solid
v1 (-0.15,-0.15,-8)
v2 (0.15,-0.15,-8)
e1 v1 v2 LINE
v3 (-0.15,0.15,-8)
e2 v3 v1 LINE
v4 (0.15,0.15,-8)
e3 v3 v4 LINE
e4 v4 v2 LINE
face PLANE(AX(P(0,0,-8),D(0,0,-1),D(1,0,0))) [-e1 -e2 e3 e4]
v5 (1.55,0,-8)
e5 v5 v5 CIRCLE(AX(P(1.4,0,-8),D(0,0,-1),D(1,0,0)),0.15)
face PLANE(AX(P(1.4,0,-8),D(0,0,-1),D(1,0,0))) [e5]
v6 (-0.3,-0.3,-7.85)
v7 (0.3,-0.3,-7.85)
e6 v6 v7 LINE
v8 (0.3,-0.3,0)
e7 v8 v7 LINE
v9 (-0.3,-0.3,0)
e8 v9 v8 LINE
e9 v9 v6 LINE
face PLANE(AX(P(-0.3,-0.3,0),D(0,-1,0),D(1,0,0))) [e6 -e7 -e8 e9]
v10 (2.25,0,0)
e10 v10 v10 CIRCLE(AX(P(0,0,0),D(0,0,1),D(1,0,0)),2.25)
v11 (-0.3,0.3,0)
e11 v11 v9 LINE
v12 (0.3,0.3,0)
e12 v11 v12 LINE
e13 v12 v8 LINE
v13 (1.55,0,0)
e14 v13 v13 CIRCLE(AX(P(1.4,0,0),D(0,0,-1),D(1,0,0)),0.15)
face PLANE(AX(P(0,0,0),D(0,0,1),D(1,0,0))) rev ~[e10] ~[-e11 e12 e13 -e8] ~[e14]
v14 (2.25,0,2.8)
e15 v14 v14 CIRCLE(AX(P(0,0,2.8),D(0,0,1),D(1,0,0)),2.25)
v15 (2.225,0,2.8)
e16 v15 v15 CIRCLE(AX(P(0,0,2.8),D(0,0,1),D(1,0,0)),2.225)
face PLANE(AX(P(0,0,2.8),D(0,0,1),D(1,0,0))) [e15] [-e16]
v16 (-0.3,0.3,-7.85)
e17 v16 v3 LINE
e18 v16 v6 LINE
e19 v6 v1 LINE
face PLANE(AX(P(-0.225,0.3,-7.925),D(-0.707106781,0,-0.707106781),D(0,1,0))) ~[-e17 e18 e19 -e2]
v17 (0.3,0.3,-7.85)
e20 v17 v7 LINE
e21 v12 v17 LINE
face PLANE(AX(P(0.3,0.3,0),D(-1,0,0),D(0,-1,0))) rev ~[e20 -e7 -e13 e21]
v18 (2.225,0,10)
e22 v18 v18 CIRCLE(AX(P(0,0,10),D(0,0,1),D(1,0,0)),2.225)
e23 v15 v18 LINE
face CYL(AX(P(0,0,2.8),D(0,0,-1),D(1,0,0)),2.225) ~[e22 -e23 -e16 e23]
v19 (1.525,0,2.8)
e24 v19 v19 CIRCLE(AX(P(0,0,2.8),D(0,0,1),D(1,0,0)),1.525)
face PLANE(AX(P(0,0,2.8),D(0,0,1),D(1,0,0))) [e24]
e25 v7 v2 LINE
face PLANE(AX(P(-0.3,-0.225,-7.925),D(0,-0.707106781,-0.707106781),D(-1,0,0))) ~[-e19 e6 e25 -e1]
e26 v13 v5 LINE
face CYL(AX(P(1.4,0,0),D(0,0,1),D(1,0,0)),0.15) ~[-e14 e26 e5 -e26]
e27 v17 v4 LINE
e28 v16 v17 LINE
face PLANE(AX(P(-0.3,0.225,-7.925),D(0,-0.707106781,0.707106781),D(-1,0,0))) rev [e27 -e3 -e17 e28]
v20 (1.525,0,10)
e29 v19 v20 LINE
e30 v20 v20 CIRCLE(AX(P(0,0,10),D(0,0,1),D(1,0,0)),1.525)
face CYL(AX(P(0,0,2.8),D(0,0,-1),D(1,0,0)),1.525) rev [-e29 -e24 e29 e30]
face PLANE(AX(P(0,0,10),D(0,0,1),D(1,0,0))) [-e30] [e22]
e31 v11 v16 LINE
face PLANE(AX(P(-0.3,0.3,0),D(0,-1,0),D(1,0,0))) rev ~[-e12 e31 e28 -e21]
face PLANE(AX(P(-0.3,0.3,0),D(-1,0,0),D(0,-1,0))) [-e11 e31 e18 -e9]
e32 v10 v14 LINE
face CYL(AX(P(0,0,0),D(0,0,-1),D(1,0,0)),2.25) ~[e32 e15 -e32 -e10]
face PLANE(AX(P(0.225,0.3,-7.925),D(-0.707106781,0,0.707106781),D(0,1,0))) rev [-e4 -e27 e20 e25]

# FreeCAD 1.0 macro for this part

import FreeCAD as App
import Part
import Sketcher

V = App.Vector


def edges_at(feature, points):
    """Names of the edges that pass closest to the given points."""
    edges = feature.Shape.Edges
    near = lambda p: min(range(len(edges)), key=lambda i: edges[i].distToShape(Part.Vertex(*p))[0])
    return sorted({f"Edge{near(p) + 1}" for p in points})


def add_polygon(sketch, points):
    """Adds a closed chain of lines whose ends are joined by coincident constraints."""
    first, n = sketch.GeometryCount, len(points)
    for a, b in zip(points, points[1:] + points[:1]):
        sketch.addGeometry(Part.LineSegment(App.Vector(*a, 0), App.Vector(*b, 0)), False)
    for i in range(n):
        sketch.addConstraint(Sketcher.Constraint("Coincident", first + i, 2, first + (i + 1) % n, 1))

doc = App.newDocument("Part")
params = doc.addObject("Spreadsheet::Sheet", "Params")
for row, (alias, value) in enumerate([
    ("sketch1_diameter", "4.5 mm"),
    ("pad1_length", "2.8 mm"),
    ("sketch2_width", "0.6 mm"),
    ("pad2_length", "8 mm"),
    ("chamfer_size", "0.15 mm"),
    ("sketch3_diameter", "0.3 mm"),
    ("pad3_length", "8 mm"),
    ("sketch4_diameter", "4.45 mm"),
    ("sketch4_diameter2", "3.05 mm"),
    ("pad4_length", "7.2 mm"),
], start=1):
    params.set(f"A{row}", alias)
    params.set(f"B{row}", "=" + value)
    params.setAlias(f"B{row}", alias)

body = doc.addObject("PartDesign::Body", "Body")

# Sketch on XY plane
sketch1 = doc.addObject("Sketcher::SketchObject", "Sketch")
body.addObject(sketch1)
sketch1.AttachmentSupport = (doc.XY_Plane, [""])
sketch1.MapMode = "FlatFace"
sketch1.addGeometry(Part.Circle(V(0, 0, 0), V(0, 0, 1), 2.2), False)
sketch1.addConstraint(Sketcher.Constraint("Coincident", 0, 3, -1, 1))
sketch1.addConstraint(Sketcher.Constraint("Diameter", 0, 4.5))
sketch1.setExpression("Constraints[1]", "Params.sketch1_diameter")
pad1 = doc.addObject("PartDesign::Pad", "Pad")
body.addObject(pad1)
pad1.Profile = sketch1
pad1.setExpression("Length", "Params.pad1_length")

# Sketch on XY plane
sketch2 = doc.addObject("Sketcher::SketchObject", "Sketch001")
body.addObject(sketch2)
sketch2.AttachmentSupport = (doc.XY_Plane, [""])
sketch2.MapMode = "FlatFace"
add_polygon(sketch2, [(-0.3, -0.3), (-0.3, 0.3), (0.3, 0.3), (0.3, -0.3)])  # lines 0-3
sketch2.addConstraint(Sketcher.Constraint("Vertical", 0))
sketch2.addConstraint(Sketcher.Constraint("Horizontal", 1))
sketch2.addConstraint(Sketcher.Constraint("Vertical", 2))
sketch2.addConstraint(Sketcher.Constraint("Horizontal", 3))
sketch2.addConstraint(Sketcher.Constraint("Symmetric", 0, 2, 2, 2, -1, 1))
sketch2.addConstraint(Sketcher.Constraint("Equal", 3, 0))
sketch2.addConstraint(Sketcher.Constraint("DistanceX", 1, 1, 1, 2, 0.6))
sketch2.setExpression("Constraints[10]", "Params.sketch2_width")
pad2 = doc.addObject("PartDesign::Pad", "Pad001")
body.addObject(pad2)
pad2.Profile = sketch2
pad2.setExpression("Length", "Params.pad2_length")
pad2.Reversed = True
doc.recompute()

chamfer = doc.addObject("PartDesign::Chamfer", "Chamfer")
body.addObject(chamfer)
chamfer.Base = (pad2, edges_at(pad2, [
    (0, -0.3, -8),
    (0.3, 0, -8),
    (0, 0.3, -8),
    (-0.3, 0, -8),
]))
chamfer.setExpression("Size", "Params.chamfer_size")

# Sketch on XY plane
sketch3 = doc.addObject("Sketcher::SketchObject", "Sketch002")
body.addObject(sketch3)
sketch3.AttachmentSupport = (doc.XY_Plane, [""])
sketch3.MapMode = "FlatFace"
sketch3.addGeometry(Part.Circle(V(1.4, 0, 0), V(0, 0, 1), 0.15), False)
sketch3.addConstraint(Sketcher.Constraint("PointOnObject", 0, 3, -1))
sketch3.addConstraint(Sketcher.Constraint("Diameter", 0, 0.3))
sketch3.addConstraint(Sketcher.Constraint("DistanceX", -1, 1, 0, 3, 1.4))
sketch3.setExpression("Constraints[1]", "Params.sketch3_diameter")
pad3 = doc.addObject("PartDesign::Pad", "Pad002")
body.addObject(pad3)
pad3.Profile = sketch3
pad3.setExpression("Length", "Params.pad3_length")
pad3.Reversed = True

# Sketch on XY plane
sketch4 = doc.addObject("Sketcher::SketchObject", "Sketch003")
body.addObject(sketch4)
sketch4.AttachmentSupport = (doc.XY_Plane, [""])
sketch4.MapMode = "FlatFace"
sketch4.AttachmentOffset = App.Placement(V(0, 0, 2.8), App.Rotation())
sketch4.addGeometry(Part.Circle(V(0, 0, 0), V(0, 0, 1), 2.2), False)
sketch4.addGeometry(Part.Circle(V(0, 0, 0), V(0, 0, 1), 1.5), False)
sketch4.addConstraint(Sketcher.Constraint("Coincident", 0, 3, -1, 1))
sketch4.addConstraint(Sketcher.Constraint("Coincident", 1, 3, -1, 1))
sketch4.addConstraint(Sketcher.Constraint("Diameter", 0, 4.45))
sketch4.addConstraint(Sketcher.Constraint("Diameter", 1, 3.05))
sketch4.setExpression("Constraints[2]", "Params.sketch4_diameter")
sketch4.setExpression("Constraints[3]", "Params.sketch4_diameter2")
pad4 = doc.addObject("PartDesign::Pad", "Pad003")
body.addObject(pad4)
pad4.Profile = sketch4
pad4.setExpression("Length", "Params.pad4_length")

doc.recompute()
